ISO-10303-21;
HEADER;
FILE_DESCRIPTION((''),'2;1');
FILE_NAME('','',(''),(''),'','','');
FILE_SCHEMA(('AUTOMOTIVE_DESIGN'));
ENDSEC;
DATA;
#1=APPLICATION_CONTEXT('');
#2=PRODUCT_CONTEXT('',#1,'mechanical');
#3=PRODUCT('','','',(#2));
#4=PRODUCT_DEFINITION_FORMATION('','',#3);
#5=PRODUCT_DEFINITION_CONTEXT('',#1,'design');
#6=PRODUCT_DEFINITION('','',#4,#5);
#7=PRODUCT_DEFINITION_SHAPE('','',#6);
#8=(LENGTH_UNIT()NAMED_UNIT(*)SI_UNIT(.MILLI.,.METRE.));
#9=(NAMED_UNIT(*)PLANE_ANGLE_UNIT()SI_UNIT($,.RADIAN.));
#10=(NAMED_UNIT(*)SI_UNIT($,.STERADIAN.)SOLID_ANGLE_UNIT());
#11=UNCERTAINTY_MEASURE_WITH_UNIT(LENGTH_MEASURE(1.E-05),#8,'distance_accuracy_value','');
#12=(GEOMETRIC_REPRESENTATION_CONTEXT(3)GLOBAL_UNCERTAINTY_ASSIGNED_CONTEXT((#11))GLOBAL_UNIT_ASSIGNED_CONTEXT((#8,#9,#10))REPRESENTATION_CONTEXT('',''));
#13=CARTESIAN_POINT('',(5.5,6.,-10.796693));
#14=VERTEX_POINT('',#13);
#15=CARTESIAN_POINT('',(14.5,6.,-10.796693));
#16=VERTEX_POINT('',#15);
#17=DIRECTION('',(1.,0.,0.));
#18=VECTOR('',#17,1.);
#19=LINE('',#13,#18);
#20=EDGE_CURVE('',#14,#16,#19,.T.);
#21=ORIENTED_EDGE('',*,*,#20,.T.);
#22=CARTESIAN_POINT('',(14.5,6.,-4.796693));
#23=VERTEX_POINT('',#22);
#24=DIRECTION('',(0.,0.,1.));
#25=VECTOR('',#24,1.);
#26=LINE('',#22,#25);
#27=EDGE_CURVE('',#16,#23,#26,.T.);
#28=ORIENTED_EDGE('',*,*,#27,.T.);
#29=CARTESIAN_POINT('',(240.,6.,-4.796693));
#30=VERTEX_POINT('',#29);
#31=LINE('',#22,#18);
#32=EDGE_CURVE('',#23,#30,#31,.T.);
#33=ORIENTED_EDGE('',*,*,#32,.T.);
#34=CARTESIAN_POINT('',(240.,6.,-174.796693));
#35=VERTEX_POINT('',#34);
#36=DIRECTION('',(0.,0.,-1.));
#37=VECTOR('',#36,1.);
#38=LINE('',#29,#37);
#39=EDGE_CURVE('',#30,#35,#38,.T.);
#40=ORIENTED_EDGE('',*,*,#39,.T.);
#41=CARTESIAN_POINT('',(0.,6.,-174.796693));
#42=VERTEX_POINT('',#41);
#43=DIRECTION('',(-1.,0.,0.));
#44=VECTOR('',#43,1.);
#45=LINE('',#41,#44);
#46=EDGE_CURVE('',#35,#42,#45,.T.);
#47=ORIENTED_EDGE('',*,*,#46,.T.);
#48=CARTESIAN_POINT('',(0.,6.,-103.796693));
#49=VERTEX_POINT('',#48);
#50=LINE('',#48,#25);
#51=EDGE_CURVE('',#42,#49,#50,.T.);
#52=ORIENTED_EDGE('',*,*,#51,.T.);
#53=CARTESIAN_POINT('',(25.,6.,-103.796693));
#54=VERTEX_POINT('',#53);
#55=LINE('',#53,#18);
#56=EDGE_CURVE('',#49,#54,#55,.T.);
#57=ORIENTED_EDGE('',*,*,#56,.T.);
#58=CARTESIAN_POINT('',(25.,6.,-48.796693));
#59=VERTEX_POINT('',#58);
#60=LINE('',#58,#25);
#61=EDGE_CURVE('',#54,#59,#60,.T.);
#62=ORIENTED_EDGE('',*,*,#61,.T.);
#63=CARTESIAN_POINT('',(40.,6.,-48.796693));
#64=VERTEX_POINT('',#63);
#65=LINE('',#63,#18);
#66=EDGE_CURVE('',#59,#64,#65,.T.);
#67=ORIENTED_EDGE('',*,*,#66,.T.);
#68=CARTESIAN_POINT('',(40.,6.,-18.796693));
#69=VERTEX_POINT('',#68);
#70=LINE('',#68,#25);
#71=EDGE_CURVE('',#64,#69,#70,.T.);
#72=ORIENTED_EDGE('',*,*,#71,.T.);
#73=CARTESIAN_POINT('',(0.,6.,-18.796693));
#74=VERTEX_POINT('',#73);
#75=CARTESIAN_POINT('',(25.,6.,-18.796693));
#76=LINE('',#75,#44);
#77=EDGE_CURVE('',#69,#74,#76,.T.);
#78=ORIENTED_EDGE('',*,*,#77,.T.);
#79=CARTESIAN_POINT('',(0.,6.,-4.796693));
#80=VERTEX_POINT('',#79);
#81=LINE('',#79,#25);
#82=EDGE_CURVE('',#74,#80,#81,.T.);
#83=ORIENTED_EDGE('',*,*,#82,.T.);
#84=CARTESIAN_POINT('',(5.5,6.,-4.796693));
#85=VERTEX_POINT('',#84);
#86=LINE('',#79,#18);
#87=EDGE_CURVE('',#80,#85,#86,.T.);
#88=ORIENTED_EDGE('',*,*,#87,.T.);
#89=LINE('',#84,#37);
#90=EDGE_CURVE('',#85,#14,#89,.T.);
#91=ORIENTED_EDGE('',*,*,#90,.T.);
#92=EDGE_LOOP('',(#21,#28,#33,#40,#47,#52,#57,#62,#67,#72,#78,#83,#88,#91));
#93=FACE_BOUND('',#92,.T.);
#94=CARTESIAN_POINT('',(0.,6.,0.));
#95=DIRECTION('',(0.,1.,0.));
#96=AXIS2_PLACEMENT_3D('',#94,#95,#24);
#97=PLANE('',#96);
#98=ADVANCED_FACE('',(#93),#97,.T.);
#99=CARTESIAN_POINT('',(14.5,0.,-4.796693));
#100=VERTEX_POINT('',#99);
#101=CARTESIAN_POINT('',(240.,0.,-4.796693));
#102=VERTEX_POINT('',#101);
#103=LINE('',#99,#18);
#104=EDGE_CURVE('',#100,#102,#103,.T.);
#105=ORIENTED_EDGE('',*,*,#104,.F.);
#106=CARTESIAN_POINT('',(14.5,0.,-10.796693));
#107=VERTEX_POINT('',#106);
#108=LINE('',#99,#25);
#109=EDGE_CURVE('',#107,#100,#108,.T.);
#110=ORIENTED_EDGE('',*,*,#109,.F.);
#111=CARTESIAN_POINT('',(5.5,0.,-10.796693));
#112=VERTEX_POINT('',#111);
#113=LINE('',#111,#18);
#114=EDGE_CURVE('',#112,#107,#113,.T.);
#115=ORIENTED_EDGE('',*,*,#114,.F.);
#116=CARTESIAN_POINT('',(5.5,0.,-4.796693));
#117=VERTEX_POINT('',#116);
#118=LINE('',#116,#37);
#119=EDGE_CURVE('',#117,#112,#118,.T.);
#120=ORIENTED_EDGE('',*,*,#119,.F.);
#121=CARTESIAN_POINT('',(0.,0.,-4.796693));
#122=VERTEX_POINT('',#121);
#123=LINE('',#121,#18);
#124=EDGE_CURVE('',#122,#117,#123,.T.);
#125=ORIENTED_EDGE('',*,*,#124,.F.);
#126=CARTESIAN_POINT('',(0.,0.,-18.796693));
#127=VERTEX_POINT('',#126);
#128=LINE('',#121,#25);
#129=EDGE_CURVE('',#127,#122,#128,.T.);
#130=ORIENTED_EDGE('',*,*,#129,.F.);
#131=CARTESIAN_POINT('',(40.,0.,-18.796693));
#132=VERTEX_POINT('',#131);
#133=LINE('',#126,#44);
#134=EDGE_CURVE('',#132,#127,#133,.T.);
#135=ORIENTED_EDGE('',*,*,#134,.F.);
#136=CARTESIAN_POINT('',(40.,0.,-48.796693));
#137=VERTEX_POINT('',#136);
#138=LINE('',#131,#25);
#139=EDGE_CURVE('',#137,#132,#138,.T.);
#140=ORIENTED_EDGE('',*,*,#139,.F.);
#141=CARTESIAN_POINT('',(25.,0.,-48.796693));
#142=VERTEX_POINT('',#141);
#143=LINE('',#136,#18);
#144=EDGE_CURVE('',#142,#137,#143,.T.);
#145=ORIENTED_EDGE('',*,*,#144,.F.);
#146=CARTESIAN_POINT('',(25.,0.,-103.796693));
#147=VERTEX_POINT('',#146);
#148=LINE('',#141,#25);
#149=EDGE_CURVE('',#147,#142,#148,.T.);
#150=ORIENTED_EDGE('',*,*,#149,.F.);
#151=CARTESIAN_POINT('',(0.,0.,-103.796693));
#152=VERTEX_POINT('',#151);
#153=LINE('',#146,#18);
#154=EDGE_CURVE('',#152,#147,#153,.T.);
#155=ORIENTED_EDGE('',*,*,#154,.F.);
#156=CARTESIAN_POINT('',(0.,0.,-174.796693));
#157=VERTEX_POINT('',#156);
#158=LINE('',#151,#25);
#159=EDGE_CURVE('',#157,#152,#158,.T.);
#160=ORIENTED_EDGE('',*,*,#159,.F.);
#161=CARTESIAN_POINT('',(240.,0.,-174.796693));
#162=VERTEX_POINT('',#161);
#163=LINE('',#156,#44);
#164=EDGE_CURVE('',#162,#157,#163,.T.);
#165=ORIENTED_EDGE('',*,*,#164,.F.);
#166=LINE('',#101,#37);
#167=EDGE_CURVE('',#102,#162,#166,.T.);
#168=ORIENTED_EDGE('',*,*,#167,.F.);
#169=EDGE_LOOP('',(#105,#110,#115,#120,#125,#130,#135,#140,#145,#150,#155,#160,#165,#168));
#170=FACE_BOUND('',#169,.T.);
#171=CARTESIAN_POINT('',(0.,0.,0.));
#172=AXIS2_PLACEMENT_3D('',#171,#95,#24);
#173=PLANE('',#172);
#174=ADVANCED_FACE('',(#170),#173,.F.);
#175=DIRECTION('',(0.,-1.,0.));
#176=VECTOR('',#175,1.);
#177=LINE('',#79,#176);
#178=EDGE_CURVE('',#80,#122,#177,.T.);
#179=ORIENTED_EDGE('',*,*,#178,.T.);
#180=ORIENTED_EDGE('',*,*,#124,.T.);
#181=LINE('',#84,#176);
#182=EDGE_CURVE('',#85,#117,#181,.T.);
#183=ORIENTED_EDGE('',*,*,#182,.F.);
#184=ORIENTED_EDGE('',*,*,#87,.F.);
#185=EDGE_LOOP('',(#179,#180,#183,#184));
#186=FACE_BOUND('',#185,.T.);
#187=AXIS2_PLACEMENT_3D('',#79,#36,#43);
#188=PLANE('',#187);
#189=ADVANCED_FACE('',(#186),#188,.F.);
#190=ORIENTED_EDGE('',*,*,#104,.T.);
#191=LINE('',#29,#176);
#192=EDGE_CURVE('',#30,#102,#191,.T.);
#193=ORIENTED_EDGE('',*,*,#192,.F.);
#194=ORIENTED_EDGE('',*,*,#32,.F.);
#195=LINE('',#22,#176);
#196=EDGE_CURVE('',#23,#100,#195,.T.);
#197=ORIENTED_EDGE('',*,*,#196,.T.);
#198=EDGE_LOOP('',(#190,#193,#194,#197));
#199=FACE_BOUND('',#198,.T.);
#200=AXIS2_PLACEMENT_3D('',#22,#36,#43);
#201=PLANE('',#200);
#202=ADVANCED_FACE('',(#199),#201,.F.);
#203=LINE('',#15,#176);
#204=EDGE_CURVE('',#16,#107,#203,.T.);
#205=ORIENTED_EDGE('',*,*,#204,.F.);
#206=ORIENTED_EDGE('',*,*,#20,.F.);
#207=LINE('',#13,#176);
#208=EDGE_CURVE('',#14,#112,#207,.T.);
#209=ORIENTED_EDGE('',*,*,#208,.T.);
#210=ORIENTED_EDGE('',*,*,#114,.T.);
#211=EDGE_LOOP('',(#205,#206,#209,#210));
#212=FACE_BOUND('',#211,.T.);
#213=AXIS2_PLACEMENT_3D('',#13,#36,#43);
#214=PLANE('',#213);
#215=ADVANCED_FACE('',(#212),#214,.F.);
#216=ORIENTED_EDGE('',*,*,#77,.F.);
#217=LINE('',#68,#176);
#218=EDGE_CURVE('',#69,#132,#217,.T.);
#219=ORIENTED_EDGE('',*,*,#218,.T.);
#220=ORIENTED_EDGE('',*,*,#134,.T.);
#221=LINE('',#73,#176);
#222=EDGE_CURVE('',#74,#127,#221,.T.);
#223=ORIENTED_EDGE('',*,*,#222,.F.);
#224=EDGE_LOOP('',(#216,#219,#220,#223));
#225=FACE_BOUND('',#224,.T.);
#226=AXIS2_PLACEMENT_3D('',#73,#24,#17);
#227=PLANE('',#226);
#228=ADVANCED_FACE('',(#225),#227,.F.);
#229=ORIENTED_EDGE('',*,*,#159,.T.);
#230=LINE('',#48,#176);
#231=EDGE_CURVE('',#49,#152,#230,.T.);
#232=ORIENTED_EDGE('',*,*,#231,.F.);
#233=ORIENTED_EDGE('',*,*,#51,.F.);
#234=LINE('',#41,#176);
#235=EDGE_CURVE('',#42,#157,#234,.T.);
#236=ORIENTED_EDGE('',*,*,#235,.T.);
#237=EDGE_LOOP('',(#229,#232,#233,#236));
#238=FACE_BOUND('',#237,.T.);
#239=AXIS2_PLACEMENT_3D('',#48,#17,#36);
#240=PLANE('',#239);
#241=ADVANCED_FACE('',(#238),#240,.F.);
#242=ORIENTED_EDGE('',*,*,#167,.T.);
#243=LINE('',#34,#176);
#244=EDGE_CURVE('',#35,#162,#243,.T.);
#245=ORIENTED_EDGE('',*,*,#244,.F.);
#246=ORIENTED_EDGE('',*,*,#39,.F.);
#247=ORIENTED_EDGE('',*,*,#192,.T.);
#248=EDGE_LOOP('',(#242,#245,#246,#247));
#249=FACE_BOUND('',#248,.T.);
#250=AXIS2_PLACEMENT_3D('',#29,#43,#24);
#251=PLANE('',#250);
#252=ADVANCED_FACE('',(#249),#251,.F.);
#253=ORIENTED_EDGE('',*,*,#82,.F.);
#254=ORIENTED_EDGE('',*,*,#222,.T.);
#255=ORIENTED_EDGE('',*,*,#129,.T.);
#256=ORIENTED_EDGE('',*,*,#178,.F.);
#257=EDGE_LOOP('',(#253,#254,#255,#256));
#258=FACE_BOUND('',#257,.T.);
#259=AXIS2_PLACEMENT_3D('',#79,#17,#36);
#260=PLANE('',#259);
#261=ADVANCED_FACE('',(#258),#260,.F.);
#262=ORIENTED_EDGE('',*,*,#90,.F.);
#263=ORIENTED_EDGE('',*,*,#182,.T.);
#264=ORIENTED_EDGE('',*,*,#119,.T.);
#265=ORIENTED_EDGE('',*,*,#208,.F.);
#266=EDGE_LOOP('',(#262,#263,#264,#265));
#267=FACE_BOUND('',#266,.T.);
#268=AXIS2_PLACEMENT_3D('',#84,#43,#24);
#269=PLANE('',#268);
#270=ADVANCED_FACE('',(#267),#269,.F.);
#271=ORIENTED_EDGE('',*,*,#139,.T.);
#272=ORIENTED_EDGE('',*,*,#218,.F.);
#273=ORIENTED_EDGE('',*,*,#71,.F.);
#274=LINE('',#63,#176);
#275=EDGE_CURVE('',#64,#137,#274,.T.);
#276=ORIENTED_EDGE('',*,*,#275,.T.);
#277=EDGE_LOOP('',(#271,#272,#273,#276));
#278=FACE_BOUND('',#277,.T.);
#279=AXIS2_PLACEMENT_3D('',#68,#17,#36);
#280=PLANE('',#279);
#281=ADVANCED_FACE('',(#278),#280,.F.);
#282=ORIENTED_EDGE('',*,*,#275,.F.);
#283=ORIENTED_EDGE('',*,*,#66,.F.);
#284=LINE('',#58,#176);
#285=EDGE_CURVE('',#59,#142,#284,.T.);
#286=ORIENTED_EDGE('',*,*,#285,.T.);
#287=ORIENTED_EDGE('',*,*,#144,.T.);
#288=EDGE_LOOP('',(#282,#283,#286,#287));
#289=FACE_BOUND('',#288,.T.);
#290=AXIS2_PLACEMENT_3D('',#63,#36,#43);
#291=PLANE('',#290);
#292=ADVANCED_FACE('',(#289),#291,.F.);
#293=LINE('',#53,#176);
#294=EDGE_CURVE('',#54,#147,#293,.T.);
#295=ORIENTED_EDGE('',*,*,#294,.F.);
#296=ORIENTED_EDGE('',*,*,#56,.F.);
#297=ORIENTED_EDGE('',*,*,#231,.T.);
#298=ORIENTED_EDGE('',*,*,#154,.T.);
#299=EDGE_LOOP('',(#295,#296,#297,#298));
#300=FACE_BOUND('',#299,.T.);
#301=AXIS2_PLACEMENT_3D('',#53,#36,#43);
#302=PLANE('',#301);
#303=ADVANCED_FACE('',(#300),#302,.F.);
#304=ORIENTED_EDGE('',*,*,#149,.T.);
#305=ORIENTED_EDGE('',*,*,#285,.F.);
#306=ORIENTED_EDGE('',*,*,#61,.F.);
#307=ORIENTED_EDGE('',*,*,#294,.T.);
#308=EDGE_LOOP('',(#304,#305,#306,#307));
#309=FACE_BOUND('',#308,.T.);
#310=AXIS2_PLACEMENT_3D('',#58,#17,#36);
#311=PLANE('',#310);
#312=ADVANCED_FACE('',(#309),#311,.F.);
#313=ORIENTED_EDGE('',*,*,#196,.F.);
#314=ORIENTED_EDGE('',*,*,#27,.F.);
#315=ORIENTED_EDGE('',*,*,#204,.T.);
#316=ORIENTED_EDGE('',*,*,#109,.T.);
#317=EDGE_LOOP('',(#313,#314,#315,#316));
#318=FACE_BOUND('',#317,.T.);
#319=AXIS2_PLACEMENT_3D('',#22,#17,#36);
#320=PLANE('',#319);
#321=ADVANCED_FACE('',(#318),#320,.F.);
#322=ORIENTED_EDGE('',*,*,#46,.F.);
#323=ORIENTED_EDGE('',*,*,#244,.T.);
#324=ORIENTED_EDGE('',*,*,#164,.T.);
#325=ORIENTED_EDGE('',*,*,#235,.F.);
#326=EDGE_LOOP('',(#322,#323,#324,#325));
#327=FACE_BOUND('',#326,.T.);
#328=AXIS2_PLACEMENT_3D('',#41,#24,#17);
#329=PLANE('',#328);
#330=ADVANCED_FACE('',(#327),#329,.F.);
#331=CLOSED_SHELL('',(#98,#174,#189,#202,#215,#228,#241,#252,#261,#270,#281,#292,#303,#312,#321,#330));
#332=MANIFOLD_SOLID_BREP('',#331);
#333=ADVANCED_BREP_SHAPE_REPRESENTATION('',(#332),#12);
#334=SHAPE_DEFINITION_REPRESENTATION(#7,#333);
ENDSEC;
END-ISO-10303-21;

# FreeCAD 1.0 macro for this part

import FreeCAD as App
import Part
import Sketcher

V = App.Vector


def add_polygon(sketch, points):
    """Adds a closed chain of lines whose ends are joined by coincident constraints."""
    first, n = sketch.GeometryCount, len(points)
    for a, b in zip(points, points[1:] + points[:1]):
        sketch.addGeometry(Part.LineSegment(App.Vector(*a, 0), App.Vector(*b, 0)), False)
    for i in range(n):
        sketch.addConstraint(Sketcher.Constraint("Coincident", first + i, 2, first + (i + 1) % n, 1))

doc = App.newDocument("Part")
body = doc.addObject("PartDesign::Body", "Body")

# Sketch on XZ plane
sketch1 = body.newObject("Sketcher::SketchObject", "Sketch")
sketch1.AttachmentSupport = (doc.getObject("XZ_Plane"), [""])
sketch1.MapMode = "FlatFace"
add_polygon(sketch1, [(14.5, -4.796693), (240, -4.796693), (240, -174.796693), (0, -174.796693), (0, -103.796693), (25, -103.796693), (25, -48.796693), (40, -48.796693), (40, -18.796693), (0, -18.796693), (0, -4.796693), (5.5, -4.796693), (5.5, -10.796693), (14.5, -10.796693)])  # lines 0-13
sketch1.addConstraint(Sketcher.Constraint("Horizontal", 0))
sketch1.addConstraint(Sketcher.Constraint("Vertical", 1))
sketch1.addConstraint(Sketcher.Constraint("Horizontal", 2))
sketch1.addConstraint(Sketcher.Constraint("Vertical", 3))
sketch1.addConstraint(Sketcher.Constraint("Horizontal", 4))
sketch1.addConstraint(Sketcher.Constraint("Vertical", 5))
sketch1.addConstraint(Sketcher.Constraint("Horizontal", 6))
sketch1.addConstraint(Sketcher.Constraint("Vertical", 7))
sketch1.addConstraint(Sketcher.Constraint("Horizontal", 8))
sketch1.addConstraint(Sketcher.Constraint("Vertical", 9))
sketch1.addConstraint(Sketcher.Constraint("Horizontal", 10))
sketch1.addConstraint(Sketcher.Constraint("Vertical", 11))
sketch1.addConstraint(Sketcher.Constraint("Horizontal", 12))
sketch1.addConstraint(Sketcher.Constraint("Vertical", 13))
sketch1.addConstraint(Sketcher.Constraint("PointOnObject", 2, 2, -2))
sketch1.addConstraint(Sketcher.Constraint("PointOnObject", 8, 2, -2))
sketch1.addConstraint(Sketcher.Constraint("Horizontal", 0, 2, 9, 2))
sketch1.addConstraint(Sketcher.Constraint("DistanceX", 2, 2, 2, 1, 240.0))
sketch1.addConstraint(Sketcher.Constraint("DistanceX", 4, 1, 4, 2, 25.0))
sketch1.addConstraint(Sketcher.Constraint("DistanceX", 6, 1, 6, 2, 15.0))
sketch1.addConstraint(Sketcher.Constraint("DistanceX", 12, 1, 12, 2, 9.0))
sketch1.addConstraint(Sketcher.Constraint("DistanceY", 1, 2, 1, 1, 170.0))
sketch1.addConstraint(Sketcher.Constraint("DistanceY", 3, 1, 3, 2, 71.0))
sketch1.addConstraint(Sketcher.Constraint("DistanceY", 5, 1, 5, 2, 55.0))
sketch1.addConstraint(Sketcher.Constraint("DistanceY", 7, 1, 7, 2, 30.0))
sketch1.addConstraint(Sketcher.Constraint("DistanceY", 11, 2, 11, 1, 6.0))
sketch1.addConstraint(Sketcher.Constraint("DistanceX", 0, 1, 0, 2, 225.5))
sketch1.addConstraint(Sketcher.Constraint("DistanceY", 0, 2, -1, 1, 4.796693))
pad1 = body.newObject("PartDesign::Pad", "Pad")
pad1.Profile = sketch1
pad1.Length = 6
pad1.Reversed = True

doc.recompute()
